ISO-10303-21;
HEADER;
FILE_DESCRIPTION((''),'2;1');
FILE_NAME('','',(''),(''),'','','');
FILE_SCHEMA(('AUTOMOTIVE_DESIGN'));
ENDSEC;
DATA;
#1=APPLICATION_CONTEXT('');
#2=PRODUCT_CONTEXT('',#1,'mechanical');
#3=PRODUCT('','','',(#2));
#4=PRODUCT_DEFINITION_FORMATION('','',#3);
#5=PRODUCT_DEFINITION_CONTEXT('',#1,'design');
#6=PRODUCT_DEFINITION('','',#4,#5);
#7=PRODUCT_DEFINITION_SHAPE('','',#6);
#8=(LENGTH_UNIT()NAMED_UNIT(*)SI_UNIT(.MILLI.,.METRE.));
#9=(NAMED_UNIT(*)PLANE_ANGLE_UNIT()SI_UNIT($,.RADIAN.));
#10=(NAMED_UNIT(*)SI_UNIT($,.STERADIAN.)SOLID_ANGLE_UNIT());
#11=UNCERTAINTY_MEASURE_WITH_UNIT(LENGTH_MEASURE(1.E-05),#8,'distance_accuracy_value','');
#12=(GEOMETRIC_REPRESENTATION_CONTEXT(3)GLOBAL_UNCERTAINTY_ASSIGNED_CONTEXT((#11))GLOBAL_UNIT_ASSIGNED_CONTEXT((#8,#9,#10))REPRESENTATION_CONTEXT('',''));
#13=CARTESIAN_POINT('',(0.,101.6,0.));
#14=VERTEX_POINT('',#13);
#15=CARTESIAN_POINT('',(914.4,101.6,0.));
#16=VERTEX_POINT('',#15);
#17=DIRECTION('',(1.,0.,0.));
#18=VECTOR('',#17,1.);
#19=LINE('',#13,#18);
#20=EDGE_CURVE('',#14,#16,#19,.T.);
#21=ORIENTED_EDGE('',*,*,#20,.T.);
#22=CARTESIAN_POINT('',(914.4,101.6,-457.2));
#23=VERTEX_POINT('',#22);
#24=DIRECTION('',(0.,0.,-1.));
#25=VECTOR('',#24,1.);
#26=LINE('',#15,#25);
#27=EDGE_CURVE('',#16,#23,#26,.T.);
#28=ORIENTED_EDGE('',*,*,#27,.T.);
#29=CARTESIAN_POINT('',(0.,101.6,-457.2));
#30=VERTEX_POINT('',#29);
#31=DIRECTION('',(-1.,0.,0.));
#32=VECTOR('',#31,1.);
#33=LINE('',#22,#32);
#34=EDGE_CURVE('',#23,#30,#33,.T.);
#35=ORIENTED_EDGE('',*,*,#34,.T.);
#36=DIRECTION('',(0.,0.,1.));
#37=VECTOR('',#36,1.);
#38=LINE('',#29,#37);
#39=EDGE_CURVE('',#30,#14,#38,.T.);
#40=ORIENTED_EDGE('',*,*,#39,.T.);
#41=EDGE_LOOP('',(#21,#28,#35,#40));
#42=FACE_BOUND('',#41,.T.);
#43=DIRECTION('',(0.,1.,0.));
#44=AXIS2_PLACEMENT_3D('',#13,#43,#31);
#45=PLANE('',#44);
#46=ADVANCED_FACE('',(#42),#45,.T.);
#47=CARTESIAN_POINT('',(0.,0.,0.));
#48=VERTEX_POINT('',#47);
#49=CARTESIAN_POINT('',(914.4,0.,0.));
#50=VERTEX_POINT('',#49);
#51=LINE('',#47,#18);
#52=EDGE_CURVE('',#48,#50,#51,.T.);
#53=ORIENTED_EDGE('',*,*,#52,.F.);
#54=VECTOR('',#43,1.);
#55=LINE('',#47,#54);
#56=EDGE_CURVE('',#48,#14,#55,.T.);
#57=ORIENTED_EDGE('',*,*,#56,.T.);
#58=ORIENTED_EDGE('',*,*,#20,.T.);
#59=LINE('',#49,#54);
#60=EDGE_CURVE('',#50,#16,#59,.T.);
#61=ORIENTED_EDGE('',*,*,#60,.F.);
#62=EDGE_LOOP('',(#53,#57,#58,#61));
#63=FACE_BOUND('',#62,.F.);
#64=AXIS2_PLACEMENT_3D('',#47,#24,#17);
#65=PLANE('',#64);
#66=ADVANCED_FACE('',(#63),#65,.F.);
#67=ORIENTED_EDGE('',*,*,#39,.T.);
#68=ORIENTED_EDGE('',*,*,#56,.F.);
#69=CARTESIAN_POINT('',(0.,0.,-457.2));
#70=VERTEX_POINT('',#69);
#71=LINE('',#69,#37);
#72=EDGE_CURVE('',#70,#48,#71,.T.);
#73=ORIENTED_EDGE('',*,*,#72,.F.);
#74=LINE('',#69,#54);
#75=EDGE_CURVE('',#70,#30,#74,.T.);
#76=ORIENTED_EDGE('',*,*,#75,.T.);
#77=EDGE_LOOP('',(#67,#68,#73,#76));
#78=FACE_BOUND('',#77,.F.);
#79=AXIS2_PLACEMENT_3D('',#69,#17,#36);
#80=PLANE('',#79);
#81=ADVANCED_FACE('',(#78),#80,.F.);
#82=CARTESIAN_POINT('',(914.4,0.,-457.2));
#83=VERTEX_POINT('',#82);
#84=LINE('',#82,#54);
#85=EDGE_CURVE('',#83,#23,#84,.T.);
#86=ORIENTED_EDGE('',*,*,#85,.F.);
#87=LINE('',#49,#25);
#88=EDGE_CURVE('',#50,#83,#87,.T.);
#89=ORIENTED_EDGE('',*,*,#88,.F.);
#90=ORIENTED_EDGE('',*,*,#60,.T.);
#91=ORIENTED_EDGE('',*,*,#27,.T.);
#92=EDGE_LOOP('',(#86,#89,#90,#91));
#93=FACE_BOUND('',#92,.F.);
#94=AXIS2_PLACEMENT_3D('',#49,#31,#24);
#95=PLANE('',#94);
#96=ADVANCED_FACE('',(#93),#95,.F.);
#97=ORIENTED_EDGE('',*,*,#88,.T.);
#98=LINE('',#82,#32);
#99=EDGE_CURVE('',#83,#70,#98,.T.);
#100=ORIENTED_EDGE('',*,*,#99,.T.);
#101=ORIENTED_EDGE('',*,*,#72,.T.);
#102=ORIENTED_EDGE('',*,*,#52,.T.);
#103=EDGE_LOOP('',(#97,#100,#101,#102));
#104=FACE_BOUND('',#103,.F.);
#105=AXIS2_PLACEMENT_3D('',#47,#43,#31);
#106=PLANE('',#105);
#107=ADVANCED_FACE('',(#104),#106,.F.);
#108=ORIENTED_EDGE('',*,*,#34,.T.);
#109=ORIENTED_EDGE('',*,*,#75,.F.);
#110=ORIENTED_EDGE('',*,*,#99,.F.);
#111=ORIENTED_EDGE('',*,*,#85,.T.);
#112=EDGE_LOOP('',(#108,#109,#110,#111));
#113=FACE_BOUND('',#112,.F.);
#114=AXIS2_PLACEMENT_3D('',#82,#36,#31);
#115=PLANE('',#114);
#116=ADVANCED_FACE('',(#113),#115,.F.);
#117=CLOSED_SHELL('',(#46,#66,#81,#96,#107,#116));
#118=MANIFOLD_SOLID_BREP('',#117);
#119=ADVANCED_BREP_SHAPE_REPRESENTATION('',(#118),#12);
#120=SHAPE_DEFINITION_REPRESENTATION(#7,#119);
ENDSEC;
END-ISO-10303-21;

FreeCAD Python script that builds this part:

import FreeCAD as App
import Part
import Sketcher

V = App.Vector
Q = App.Units.Quantity


def add_polygon(sketch, points):
    """Adds a closed chain of lines whose ends are joined by coincident constraints."""
    first, n = sketch.GeometryCount, len(points)
    for a, b in zip(points, points[1:] + points[:1]):
        sketch.addGeometry(Part.LineSegment(App.Vector(*a, 0), App.Vector(*b, 0)), False)
    for i in range(n):
        sketch.addConstraint(Sketcher.Constraint("Coincident", first + i, 2, first + (i + 1) % n, 1))

doc = App.newDocument("Part")
body = doc.addObject("PartDesign::Body", "Body")

# Sketch on XZ plane
sketch1 = body.newObject("Sketcher::SketchObject", "Sketch")
sketch1.AttachmentSupport = (doc.getObject("XZ_Plane"), [""])
sketch1.MapMode = "FlatFace"
add_polygon(sketch1, [(0, -457), (0, 0), (914, 0), (914, -457)])  # lines 0-3
sketch1.addConstraint([
    Sketcher.Constraint("Vertical", 0),
    Sketcher.Constraint("Horizontal", 1),
    Sketcher.Constraint("Vertical", 2),
    Sketcher.Constraint("Horizontal", 3),
    Sketcher.Constraint("Coincident", 0, 2, -1, 1),
    Sketcher.Constraint("DistanceX", 1, 1, 1, 2, Q("36 in")),
    Sketcher.Constraint("DistanceY", 0, 1, 0, 2, Q("18 in")),
])
pad1 = body.newObject("PartDesign::Pad", "Pad")
pad1.Profile = sketch1
pad1.Length = Q("4 in")
pad1.Reversed = True

doc.recompute()
